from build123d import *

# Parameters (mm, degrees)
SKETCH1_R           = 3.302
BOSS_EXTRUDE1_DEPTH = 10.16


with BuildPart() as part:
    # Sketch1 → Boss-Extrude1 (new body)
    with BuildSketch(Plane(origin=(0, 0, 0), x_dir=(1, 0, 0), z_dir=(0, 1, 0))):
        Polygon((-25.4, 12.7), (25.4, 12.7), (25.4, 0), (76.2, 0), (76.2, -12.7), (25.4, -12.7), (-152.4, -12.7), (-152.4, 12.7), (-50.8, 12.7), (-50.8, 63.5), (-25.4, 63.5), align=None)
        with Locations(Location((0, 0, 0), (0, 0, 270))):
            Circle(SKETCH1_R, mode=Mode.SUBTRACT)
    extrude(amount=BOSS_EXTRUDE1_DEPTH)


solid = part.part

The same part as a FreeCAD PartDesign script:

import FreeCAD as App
import Part
import Sketcher
from FreeCAD import Vector
Q = App.Units.Quantity


def add_polygon(sketch, points):
    """Adds a closed chain of lines whose ends are joined by coincident constraints."""
    first, n = sketch.GeometryCount, len(points)
    for a, b in zip(points, points[1:] + points[:1]):
        sketch.addGeometry(Part.LineSegment(App.Vector(*a, 0), App.Vector(*b, 0)), False)
    for i in range(n):
        sketch.addConstraint(Sketcher.Constraint("Coincident", first + i, 2, first + (i + 1) % n, 1))

doc = App.newDocument("Part")
body = doc.addObject("PartDesign::Body", "Body")

# Sketch on XZ plane
sketch1 = body.newObject("Sketcher::SketchObject", "Sketch")
sketch1.AttachmentSupport = (doc.getObject("XZ_Plane"), [""])
sketch1.MapMode = "FlatFace"
add_polygon(sketch1, [(25.4, -12.7), (-25.4, -12.7), (-25.4, -63.5), (-50.8, -63.5), (-50.8, -12.7), (-152.4, -12.7), (-152.4, 12.7), (76.2, 12.7), (76.2, 0), (25.4, 0)])  # lines 0-9
sketch1.addGeometry(Part.Circle(Vector(0, 0, 0), Vector(0, 0, 1), 3.3), False)  # 10
sketch1.addConstraint([
    Sketcher.Constraint("Horizontal", 0),
    Sketcher.Constraint("Vertical", 1),
    Sketcher.Constraint("Horizontal", 2),
    Sketcher.Constraint("Vertical", 3),
    Sketcher.Constraint("Horizontal", 4),
    Sketcher.Constraint("Vertical", 5),
    Sketcher.Constraint("Horizontal", 6),
    Sketcher.Constraint("Vertical", 7),
    Sketcher.Constraint("Horizontal", 8),
    Sketcher.Constraint("Vertical", 9),
    Sketcher.Constraint("Coincident", 10, 3, -1, 1),
    Sketcher.Constraint("PointOnObject", 7, 2, -1),
    Sketcher.Constraint("Horizontal", 0, 2, 3, 2),
    Sketcher.Constraint("Equal", 0, 8),
    Sketcher.Constraint("Equal", 8, 1),
    Sketcher.Constraint("Equal", 2, 5),
    Sketcher.Constraint("Equal", 7, 9),
    Sketcher.Constraint("Diameter", 10, Q("0.26 in")),
    Sketcher.Constraint("DistanceX", 0, 2, 0, 1, Q("2 in")),
    Sketcher.Constraint("DistanceX", 2, 2, 2, 1, Q("1 in")),
    Sketcher.Constraint("DistanceX", 4, 2, 4, 1, Q("4 in")),
    Sketcher.Constraint("DistanceX", 0, 2, -1, 1, Q("1 in")),
])
pad1 = body.newObject("PartDesign::Pad", "Pad")
pad1.Profile = sketch1
pad1.Length = Q("0.4 in")
pad1.Reversed = True

doc.recompute()
